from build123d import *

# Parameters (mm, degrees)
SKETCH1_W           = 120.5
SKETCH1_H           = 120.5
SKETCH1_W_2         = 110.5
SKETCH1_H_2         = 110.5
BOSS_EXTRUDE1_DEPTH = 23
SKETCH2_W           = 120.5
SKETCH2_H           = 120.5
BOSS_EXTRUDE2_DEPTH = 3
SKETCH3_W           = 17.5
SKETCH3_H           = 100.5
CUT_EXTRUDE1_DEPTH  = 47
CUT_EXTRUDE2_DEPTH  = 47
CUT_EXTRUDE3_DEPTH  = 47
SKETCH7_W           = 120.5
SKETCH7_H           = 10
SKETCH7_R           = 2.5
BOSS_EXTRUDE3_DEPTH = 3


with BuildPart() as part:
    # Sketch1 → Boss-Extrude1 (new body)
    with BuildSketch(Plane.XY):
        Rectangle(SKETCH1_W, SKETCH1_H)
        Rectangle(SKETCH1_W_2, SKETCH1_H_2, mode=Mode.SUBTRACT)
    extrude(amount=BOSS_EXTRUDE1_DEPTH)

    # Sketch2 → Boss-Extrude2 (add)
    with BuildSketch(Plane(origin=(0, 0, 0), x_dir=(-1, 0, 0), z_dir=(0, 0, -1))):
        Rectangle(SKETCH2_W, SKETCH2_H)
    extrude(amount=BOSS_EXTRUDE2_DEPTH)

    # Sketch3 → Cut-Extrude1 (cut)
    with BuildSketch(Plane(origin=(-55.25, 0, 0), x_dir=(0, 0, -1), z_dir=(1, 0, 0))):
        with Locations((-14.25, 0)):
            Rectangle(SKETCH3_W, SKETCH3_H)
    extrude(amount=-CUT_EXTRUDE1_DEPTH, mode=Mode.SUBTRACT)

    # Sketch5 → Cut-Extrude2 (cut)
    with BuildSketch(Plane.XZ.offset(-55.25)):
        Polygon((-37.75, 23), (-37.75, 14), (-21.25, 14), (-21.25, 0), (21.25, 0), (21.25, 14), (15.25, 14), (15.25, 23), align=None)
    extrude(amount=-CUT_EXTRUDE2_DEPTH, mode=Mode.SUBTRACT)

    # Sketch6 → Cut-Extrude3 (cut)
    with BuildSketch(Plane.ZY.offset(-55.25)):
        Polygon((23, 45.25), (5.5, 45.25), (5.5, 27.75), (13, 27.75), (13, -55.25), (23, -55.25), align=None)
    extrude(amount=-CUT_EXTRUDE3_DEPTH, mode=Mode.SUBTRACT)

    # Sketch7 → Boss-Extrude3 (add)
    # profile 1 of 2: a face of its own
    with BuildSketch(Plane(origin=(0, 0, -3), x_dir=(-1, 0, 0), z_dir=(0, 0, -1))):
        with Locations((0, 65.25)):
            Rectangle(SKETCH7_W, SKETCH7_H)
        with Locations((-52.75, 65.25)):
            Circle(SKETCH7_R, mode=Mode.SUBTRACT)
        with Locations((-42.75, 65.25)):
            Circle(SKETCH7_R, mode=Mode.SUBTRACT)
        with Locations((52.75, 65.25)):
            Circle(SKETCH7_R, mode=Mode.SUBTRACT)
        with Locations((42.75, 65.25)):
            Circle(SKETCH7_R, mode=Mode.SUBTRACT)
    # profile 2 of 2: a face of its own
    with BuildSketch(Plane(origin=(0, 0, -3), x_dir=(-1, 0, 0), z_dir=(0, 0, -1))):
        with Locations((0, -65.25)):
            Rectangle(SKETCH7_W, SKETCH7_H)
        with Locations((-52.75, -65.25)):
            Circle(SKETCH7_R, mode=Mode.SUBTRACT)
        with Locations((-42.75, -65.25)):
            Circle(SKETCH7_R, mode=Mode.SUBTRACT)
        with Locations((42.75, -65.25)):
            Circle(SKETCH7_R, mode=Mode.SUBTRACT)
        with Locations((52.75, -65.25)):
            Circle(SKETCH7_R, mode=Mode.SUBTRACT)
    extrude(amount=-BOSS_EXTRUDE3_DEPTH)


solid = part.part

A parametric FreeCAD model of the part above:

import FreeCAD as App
import Part
import Sketcher
from FreeCAD import Vector


def add_polygon(sketch, points):
    """Adds a closed chain of lines whose ends are joined by coincident constraints."""
    first, n = sketch.GeometryCount, len(points)
    for a, b in zip(points, points[1:] + points[:1]):
        sketch.addGeometry(Part.LineSegment(App.Vector(*a, 0), App.Vector(*b, 0)), False)
    for i in range(n):
        sketch.addConstraint(Sketcher.Constraint("Coincident", first + i, 2, first + (i + 1) % n, 1))

doc = App.newDocument("Part")
params = doc.addObject("Spreadsheet::Sheet", "Params")
for row, (alias, value) in enumerate([
    ("sketch1_width", "120.5 mm"),
    ("sketch1_width2", "110.5 mm"),
    ("pad1_length", "23 mm"),
    ("sketch2_width", "120.5 mm"),
    ("pad2_length", "3 mm"),
    ("sketch3_width", "100.5 mm"),
    ("sketch3_height", "17.5 mm"),
    ("pocket1_length", "47 mm"),
    ("sketch4_width", "6 mm"),
    ("sketch4_width2", "53 mm"),
    ("sketch4_height", "9 mm"),
    ("sketch4_height2", "14 mm"),
    ("sketch4_width3", "16.5 mm"),
    ("pocket2_length", "47 mm"),
    ("sketch5_width", "83 mm"),
    ("sketch5_height", "10 mm"),
    ("sketch5_width2", "17.5 mm"),
    ("pocket3_length", "47 mm"),
    ("sketch6_diameter", "5 mm"),
    ("sketch6_height", "10 mm"),
    ("sketch6_width", "120.5 mm"),
    ("pad3_length", "3 mm"),
], start=1):
    params.set(f"A{row}", alias)
    params.set(f"B{row}", "=" + value)
    params.setAlias(f"B{row}", alias)

body = doc.addObject("PartDesign::Body", "Body")

# Sketch on XY plane
sketch1 = doc.addObject("Sketcher::SketchObject", "Sketch")
body.addObject(sketch1)
sketch1.AttachmentSupport = (doc.XY_Plane, [""])
sketch1.MapMode = "FlatFace"
add_polygon(sketch1, [(-60, 60), (-60, -60), (60, -60), (60, 60)])  # lines 0-3
add_polygon(sketch1, [(55, -55), (-55, -55), (-55, 55), (55, 55)])  # lines 4-7
sketch1.addConstraint([
    Sketcher.Constraint("Vertical", 0),
    Sketcher.Constraint("Horizontal", 1),
    Sketcher.Constraint("Vertical", 2),
    Sketcher.Constraint("Horizontal", 3),
    Sketcher.Constraint("Horizontal", 4),
    Sketcher.Constraint("Vertical", 5),
    Sketcher.Constraint("Horizontal", 6),
    Sketcher.Constraint("Vertical", 7),
    Sketcher.Constraint("Symmetric", 0, 2, 2, 2, -1, 1),
    Sketcher.Constraint("Symmetric", 4, 2, 6, 2, -1, 1),
    Sketcher.Constraint("Equal", 3, 0),
    Sketcher.Constraint("Equal", 6, 5),
    Sketcher.Constraint("DistanceX", 1, 1, 1, 2, 120.5),
    Sketcher.Constraint("DistanceX", 4, 2, 4, 1, 110.5),
])
sketch1.setExpression("Constraints[20]", "Params.sketch1_width")
sketch1.setExpression("Constraints[21]", "Params.sketch1_width2")
pad1 = doc.addObject("PartDesign::Pad", "Pad")
body.addObject(pad1)
pad1.Profile = sketch1
pad1.setExpression("Length", "Params.pad1_length")

# Sketch on XY plane
sketch2 = doc.addObject("Sketcher::SketchObject", "Sketch001")
body.addObject(sketch2)
sketch2.AttachmentSupport = (doc.XY_Plane, [""])
sketch2.MapMode = "FlatFace"
add_polygon(sketch2, [(60, 60), (60, -60), (-60, -60), (-60, 60)])  # lines 0-3
sketch2.addConstraint([
    Sketcher.Constraint("Vertical", 0),
    Sketcher.Constraint("Horizontal", 1),
    Sketcher.Constraint("Vertical", 2),
    Sketcher.Constraint("Horizontal", 3),
    Sketcher.Constraint("Symmetric", 0, 2, 2, 2, -1, 1),
    Sketcher.Constraint("Equal", 3, 0),
    Sketcher.Constraint("DistanceX", 1, 2, 1, 1, 120.5),
])
sketch2.setExpression("Constraints[10]", "Params.sketch2_width")
pad2 = doc.addObject("PartDesign::Pad", "Pad001")
body.addObject(pad2)
pad2.Profile = sketch2
pad2.setExpression("Length", "Params.pad2_length")
pad2.Reversed = True

# Sketch on YZ plane
sketch3 = doc.addObject("Sketcher::SketchObject", "Sketch002")
body.addObject(sketch3)
sketch3.AttachmentSupport = (doc.YZ_Plane, [""])
sketch3.MapMode = "FlatFace"
sketch3.AttachmentOffset = App.Placement(Vector(0, 0, -55.25), App.Rotation())
add_polygon(sketch3, [(50, 23), (-50, 23), (-50, 6), (50, 6)])  # lines 0-3
sketch3.addConstraint([
    Sketcher.Constraint("Horizontal", 0),
    Sketcher.Constraint("Vertical", 1),
    Sketcher.Constraint("Horizontal", 2),
    Sketcher.Constraint("Vertical", 3),
    Sketcher.Constraint("DistanceX", 0, 2, 0, 1, 100.5),
    Sketcher.Constraint("DistanceY", 1, 2, 1, 1, 17.5),
    Sketcher.Constraint("DistanceY", -1, 1, 0, 2, 23.0),
    Sketcher.Constraint("DistanceX", 0, 2, -1, 1, 50.25),
])
sketch3.setExpression("Constraints[8]", "Params.sketch3_width")
sketch3.setExpression("Constraints[9]", "Params.sketch3_height")
pocket1 = doc.addObject("PartDesign::Pocket", "Pocket")
body.addObject(pocket1)
pocket1.Profile = sketch3
pocket1.setExpression("Length", "Params.pocket1_length")

# Sketch on XZ plane
sketch4 = doc.addObject("Sketcher::SketchObject", "Sketch003")
body.addObject(sketch4)
sketch4.AttachmentSupport = (doc.XZ_Plane, [""])
sketch4.MapMode = "FlatFace"
sketch4.AttachmentOffset = App.Placement(Vector(0, 0, -55.25), App.Rotation())
add_polygon(sketch4, [(-38, 23), (-38, 14), (-21, 14), (-21, 0), (21, 0), (21, 14), (15, 14), (15, 23)])  # lines 0-7
sketch4.addConstraint([
    Sketcher.Constraint("Vertical", 0),
    Sketcher.Constraint("Horizontal", 1),
    Sketcher.Constraint("Vertical", 2),
    Sketcher.Constraint("Horizontal", 3),
    Sketcher.Constraint("Vertical", 4),
    Sketcher.Constraint("Horizontal", 5),
    Sketcher.Constraint("Vertical", 6),
    Sketcher.Constraint("Horizontal", 7),
    Sketcher.Constraint("Symmetric", 2, 2, 3, 2, -1, 1),
    Sketcher.Constraint("Horizontal", 1, 2, 4, 2),
    Sketcher.Constraint("DistanceX", 5, 2, 5, 1, 6.0),
    Sketcher.Constraint("DistanceX", 7, 2, 7, 1, 53.0),
    Sketcher.Constraint("DistanceY", 0, 2, 0, 1, 9.0),
    Sketcher.Constraint("DistanceY", 2, 2, 2, 1, 14.0),
    Sketcher.Constraint("DistanceX", 1, 1, 1, 2, 16.5),
])
sketch4.setExpression("Constraints[18]", "Params.sketch4_width")
sketch4.setExpression("Constraints[19]", "Params.sketch4_width2")
sketch4.setExpression("Constraints[20]", "Params.sketch4_height")
sketch4.setExpression("Constraints[21]", "Params.sketch4_height2")
sketch4.setExpression("Constraints[22]", "Params.sketch4_width3")
pocket2 = doc.addObject("PartDesign::Pocket", "Pocket001")
body.addObject(pocket2)
pocket2.Profile = sketch4
pocket2.setExpression("Length", "Params.pocket2_length")

# Sketch on YZ plane
sketch5 = doc.addObject("Sketcher::SketchObject", "Sketch004")
body.addObject(sketch5)
sketch5.AttachmentSupport = (doc.YZ_Plane, [""])
sketch5.MapMode = "FlatFace"
sketch5.AttachmentOffset = App.Placement(Vector(0, 0, 55.25), App.Rotation())
add_polygon(sketch5, [(45, 23), (45, 6), (28, 6), (28, 13), (-55, 13), (-55, 23)])  # lines 0-5
sketch5.addConstraint([
    Sketcher.Constraint("Vertical", 0),
    Sketcher.Constraint("Horizontal", 1),
    Sketcher.Constraint("Vertical", 2),
    Sketcher.Constraint("Horizontal", 3),
    Sketcher.Constraint("Vertical", 4),
    Sketcher.Constraint("Horizontal", 5),
    Sketcher.Constraint("Equal", 1, 0),
    Sketcher.Constraint("DistanceX", 3, 2, 3, 1, 83.0),
    Sketcher.Constraint("DistanceY", 4, 1, 4, 2, 10.0),
    Sketcher.Constraint("DistanceX", 1, 2, 1, 1, 17.5),
    Sketcher.Constraint("DistanceY", -1, 1, 2, 2, 13.0),
    Sketcher.Constraint("DistanceX", -1, 1, 0, 2, 45.25),
])
sketch5.setExpression("Constraints[13]", "Params.sketch5_width")
sketch5.setExpression("Constraints[14]", "Params.sketch5_height")
sketch5.setExpression("Constraints[15]", "Params.sketch5_width2")
pocket3 = doc.addObject("PartDesign::Pocket", "Pocket002")
body.addObject(pocket3)
pocket3.Profile = sketch5
pocket3.setExpression("Length", "Params.pocket3_length")
pocket3.Reversed = True

# Sketch on XY plane
sketch6 = doc.addObject("Sketcher::SketchObject", "Sketch005")
body.addObject(sketch6)
sketch6.AttachmentSupport = (doc.XY_Plane, [""])
sketch6.MapMode = "FlatFace"
sketch6.AttachmentOffset = App.Placement(Vector(0, 0, -3), App.Rotation())
add_polygon(sketch6, [(60.2, 70.2), (60.2, 60.2), (-60.2, 60.2), (-60.2, 70.2)])  # lines 0-3
sketch6.addGeometry(Part.Circle(Vector(52.8, 65.2, 0), Vector(0, 0, 1), 2.5), False)  # 4
sketch6.addGeometry(Part.Circle(Vector(42.8, 65.2, 0), Vector(0, 0, 1), 2.5), False)  # 5
sketch6.addGeometry(Part.Circle(Vector(-42.8, 65.2, 0), Vector(0, 0, 1), 2.5), False)  # 6
sketch6.addGeometry(Part.Circle(Vector(-52.8, 65.2, 0), Vector(0, 0, 1), 2.5), False)  # 7
add_polygon(sketch6, [(60.2, -60.2), (60.2, -70.2), (-60.2, -70.2), (-60.2, -60.2)])  # lines 8-11
sketch6.addGeometry(Part.Circle(Vector(52.8, -65.2, 0), Vector(0, 0, 1), 2.5), False)  # 12
sketch6.addGeometry(Part.Circle(Vector(42.8, -65.2, 0), Vector(0, 0, 1), 2.5), False)  # 13
sketch6.addGeometry(Part.Circle(Vector(-42.8, -65.2, 0), Vector(0, 0, 1), 2.5), False)  # 14
sketch6.addGeometry(Part.Circle(Vector(-52.8, -65.2, 0), Vector(0, 0, 1), 2.5), False)  # 15
sketch6.addConstraint([
    Sketcher.Constraint("Vertical", 0),
    Sketcher.Constraint("Horizontal", 1),
    Sketcher.Constraint("Vertical", 2),
    Sketcher.Constraint("Horizontal", 3),
    Sketcher.Constraint("Vertical", 8),
    Sketcher.Constraint("Horizontal", 9),
    Sketcher.Constraint("Vertical", 10),
    Sketcher.Constraint("Horizontal", 11),
    Sketcher.Constraint("Equal", 4, 5),
    Sketcher.Constraint("Equal", 5, 6),
    Sketcher.Constraint("Equal", 6, 7),
    Sketcher.Constraint("Equal", 7, 12),
    Sketcher.Constraint("Equal", 12, 13),
    Sketcher.Constraint("Equal", 13, 14),
    Sketcher.Constraint("Equal", 14, 15),
    Sketcher.Constraint("Symmetric", 7, 3, 12, 3, -1, 1),
    Sketcher.Constraint("Symmetric", 6, 3, 13, 3, -1, 1),
    Sketcher.Constraint("Symmetric", 5, 3, 14, 3, -1, 1),
    Sketcher.Constraint("Symmetric", 4, 3, 15, 3, -1, 1),
    Sketcher.Constraint("Symmetric", 2, 2, 8, 2, -1, 1),
    Sketcher.Constraint("Symmetric", 0, 2, 10, 2, -1, 1),
    Sketcher.Constraint("Symmetric", 5, 3, 6, 3, -2),
    Sketcher.Constraint("Symmetric", 4, 3, 7, 3, -2),
    Sketcher.Constraint("Horizontal", 4, 3, 5, 3),
    Sketcher.Constraint("Vertical", 3, 2, 8, 2),
    Sketcher.Constraint("Diameter", 4, 5.0),
    Sketcher.Constraint("DistanceY", 0, 2, 0, 1, 10.0),
    Sketcher.Constraint("DistanceX", 1, 2, 1, 1, 120.5),
    Sketcher.Constraint("DistanceX", 5, 3, 4, 3, 10.0),
    Sketcher.Constraint("DistanceY", 0, 2, 4, 3, 5.0),
    Sketcher.Constraint("DistanceX", 6, 3, 0, 2, 103.0),
    Sketcher.Constraint("DistanceY", 12, 3, 4, 3, 130.5),
])
sketch6.setExpression("Constraints[33]", "Params.sketch6_diameter")
sketch6.setExpression("Constraints[34]", "Params.sketch6_height")
sketch6.setExpression("Constraints[35]", "Params.sketch6_width")
pad3 = doc.addObject("PartDesign::Pad", "Pad002")
body.addObject(pad3)
pad3.Profile = sketch6
pad3.setExpression("Length", "Params.pad3_length")

doc.recompute()
